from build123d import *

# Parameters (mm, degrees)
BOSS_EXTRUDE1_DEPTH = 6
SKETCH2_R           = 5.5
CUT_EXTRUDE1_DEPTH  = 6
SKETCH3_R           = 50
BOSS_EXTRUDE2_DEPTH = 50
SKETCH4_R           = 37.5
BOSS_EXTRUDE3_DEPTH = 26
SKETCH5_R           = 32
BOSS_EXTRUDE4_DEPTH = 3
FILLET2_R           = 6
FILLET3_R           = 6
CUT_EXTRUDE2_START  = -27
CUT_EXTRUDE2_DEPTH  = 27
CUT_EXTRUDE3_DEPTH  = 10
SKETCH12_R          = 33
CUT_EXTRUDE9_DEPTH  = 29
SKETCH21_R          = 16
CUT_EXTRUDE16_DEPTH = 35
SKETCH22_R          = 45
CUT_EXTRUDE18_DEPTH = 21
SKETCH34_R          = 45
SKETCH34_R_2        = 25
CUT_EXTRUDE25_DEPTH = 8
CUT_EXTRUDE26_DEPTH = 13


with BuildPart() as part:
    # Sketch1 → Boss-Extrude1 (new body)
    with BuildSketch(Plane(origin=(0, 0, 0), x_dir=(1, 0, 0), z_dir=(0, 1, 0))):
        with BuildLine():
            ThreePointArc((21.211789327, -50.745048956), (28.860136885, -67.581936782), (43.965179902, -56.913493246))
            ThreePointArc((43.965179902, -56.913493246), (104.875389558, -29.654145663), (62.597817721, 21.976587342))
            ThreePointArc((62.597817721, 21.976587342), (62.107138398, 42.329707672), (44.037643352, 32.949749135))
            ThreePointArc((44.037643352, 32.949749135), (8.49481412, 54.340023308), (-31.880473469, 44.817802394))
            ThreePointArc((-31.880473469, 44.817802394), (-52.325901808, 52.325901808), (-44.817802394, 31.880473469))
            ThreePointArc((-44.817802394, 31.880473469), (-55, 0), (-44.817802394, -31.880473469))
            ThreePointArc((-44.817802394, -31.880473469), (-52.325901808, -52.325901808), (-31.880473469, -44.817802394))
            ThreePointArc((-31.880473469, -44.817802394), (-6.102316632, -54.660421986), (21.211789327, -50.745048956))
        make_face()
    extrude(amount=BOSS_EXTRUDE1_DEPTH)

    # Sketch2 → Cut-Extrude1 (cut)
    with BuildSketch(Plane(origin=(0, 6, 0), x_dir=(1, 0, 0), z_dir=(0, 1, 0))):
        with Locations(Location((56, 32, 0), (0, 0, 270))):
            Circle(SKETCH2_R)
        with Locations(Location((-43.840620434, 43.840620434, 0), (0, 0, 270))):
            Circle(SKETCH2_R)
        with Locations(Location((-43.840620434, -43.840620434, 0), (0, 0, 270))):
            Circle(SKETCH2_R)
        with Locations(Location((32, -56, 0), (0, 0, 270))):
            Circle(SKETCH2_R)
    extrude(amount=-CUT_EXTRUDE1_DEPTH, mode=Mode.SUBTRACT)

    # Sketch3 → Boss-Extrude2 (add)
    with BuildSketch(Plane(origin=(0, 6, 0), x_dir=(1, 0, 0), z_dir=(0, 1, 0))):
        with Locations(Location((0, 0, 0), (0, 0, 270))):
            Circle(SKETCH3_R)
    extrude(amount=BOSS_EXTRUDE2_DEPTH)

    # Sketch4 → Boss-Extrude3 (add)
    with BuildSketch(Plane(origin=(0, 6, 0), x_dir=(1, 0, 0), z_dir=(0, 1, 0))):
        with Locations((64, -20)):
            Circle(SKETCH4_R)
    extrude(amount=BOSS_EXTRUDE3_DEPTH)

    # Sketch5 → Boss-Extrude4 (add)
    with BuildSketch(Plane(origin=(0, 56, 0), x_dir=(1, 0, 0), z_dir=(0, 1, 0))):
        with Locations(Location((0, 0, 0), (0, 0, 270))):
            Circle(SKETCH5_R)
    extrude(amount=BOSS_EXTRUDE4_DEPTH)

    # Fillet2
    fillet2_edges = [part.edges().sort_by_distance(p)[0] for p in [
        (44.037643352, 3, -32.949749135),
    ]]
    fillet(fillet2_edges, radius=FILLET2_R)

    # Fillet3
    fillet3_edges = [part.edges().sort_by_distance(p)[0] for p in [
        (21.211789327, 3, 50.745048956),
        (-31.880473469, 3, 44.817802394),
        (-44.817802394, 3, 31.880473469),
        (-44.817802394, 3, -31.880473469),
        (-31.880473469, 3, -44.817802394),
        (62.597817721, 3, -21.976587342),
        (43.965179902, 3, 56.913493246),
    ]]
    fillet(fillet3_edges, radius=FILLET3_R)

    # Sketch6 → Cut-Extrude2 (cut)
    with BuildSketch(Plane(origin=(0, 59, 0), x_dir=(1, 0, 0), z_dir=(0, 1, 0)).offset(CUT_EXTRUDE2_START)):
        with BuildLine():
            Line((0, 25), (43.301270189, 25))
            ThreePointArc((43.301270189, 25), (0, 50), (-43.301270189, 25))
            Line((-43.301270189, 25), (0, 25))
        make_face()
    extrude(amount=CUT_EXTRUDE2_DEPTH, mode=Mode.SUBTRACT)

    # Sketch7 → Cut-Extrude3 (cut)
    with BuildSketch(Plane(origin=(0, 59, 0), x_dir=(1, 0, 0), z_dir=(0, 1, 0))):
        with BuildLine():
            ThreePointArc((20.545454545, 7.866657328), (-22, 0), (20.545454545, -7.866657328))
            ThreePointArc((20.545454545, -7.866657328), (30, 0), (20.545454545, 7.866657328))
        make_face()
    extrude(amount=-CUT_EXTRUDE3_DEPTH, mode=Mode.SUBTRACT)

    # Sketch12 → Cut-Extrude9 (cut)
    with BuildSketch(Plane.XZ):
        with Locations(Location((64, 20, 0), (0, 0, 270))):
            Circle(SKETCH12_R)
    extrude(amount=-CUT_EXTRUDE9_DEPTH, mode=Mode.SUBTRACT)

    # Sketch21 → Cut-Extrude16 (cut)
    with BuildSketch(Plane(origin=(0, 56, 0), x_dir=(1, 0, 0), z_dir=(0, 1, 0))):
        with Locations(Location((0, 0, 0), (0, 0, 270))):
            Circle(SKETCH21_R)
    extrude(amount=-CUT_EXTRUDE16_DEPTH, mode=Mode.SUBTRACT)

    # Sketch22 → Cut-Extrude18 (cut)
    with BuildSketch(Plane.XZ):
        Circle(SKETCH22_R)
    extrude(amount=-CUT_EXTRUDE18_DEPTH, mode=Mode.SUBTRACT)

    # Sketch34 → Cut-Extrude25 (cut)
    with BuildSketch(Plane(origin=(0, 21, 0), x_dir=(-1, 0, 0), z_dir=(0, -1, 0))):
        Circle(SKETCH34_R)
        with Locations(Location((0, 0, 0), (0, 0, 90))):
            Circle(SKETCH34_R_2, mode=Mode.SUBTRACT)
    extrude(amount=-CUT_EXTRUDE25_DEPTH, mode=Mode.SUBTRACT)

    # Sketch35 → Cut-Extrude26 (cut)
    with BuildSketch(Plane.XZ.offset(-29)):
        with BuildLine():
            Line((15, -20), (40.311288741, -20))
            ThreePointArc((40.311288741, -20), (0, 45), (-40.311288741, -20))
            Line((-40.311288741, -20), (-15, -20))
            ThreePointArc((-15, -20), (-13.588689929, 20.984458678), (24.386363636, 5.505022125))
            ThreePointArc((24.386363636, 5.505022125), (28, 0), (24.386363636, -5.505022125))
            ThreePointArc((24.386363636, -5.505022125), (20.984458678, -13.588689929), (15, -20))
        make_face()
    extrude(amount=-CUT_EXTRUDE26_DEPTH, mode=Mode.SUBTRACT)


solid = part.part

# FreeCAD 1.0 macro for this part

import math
import FreeCAD as App
import Part
import Sketcher
from FreeCAD import Vector
Q = App.Units.Quantity


def edges_at(feature, points):
    """Names of the edges that pass closest to the given points."""
    edges = feature.Shape.Edges
    near = lambda p: min(range(len(edges)), key=lambda i: edges[i].distToShape(Part.Vertex(*p))[0])
    return sorted({f"Edge{near(p) + 1}" for p in points})

doc = App.newDocument("Part")
body = doc.addObject("PartDesign::Body", "Body")

# Sketch on XZ plane
sketch1 = body.newObject("Sketcher::SketchObject", "Sketch")
sketch1.AttachmentSupport = (doc.getObject("XZ_Plane"), [""])
sketch1.MapMode = "FlatFace"
sketch1.addGeometry([
    Part.ArcOfCircle(Part.Circle(Vector(32, 56, 0), Vector(0, 0, 1), 12), math.radians(4), math.radians(206)),  # 0
    Part.ArcOfCircle(Part.Circle(Vector(64, 20, 0), Vector(0, 0, 1), 42), math.radians(-92), math.radians(118)),  # 1
    Part.ArcOfCircle(Part.Circle(Vector(56, -32, 0), Vector(0, 0, 1), 12), math.radians(-175), math.radians(57)),  # 2
    Part.ArcOfCircle(Part.Circle(Vector(0, 0, 0), Vector(0, 0, 1), 55), math.radians(-125), math.radians(-37)),  # 3
    Part.ArcOfCircle(Part.Circle(Vector(-44, -44, 0), Vector(0, 0, 1), 12), math.radians(95), math.radians(355)),  # 4
    Part.ArcOfCircle(Part.Circle(Vector(0, 0, 0), Vector(0, 0, 1), 55), math.radians(145), math.radians(215)),  # 5
    Part.ArcOfCircle(Part.Circle(Vector(-44, 44, 0), Vector(0, 0, 1), 12), math.radians(5), math.radians(265)),  # 6
    Part.ArcOfCircle(Part.Circle(Vector(0, 0, 0), Vector(0, 0, 1), 55), math.radians(67), math.radians(125)),  # 7
], False)
sketch1.addConstraint([
    Sketcher.Constraint("Coincident", 0, 1, 1, 2),
    Sketcher.Constraint("Coincident", 1, 1, 2, 2),
    Sketcher.Constraint("Coincident", 2, 1, 3, 2),
    Sketcher.Constraint("Coincident", 3, 1, 4, 2),
    Sketcher.Constraint("Coincident", 4, 1, 5, 2),
    Sketcher.Constraint("Coincident", 5, 1, 6, 2),
    Sketcher.Constraint("Coincident", 6, 1, 7, 2),
    Sketcher.Constraint("Coincident", 7, 1, 0, 2),
    Sketcher.Constraint("Coincident", 3, 3, -1, 1),
    Sketcher.Constraint("Coincident", 5, 3, -1, 1),
    Sketcher.Constraint("Coincident", 7, 3, -1, 1),
    Sketcher.Constraint("Equal", 0, 2),
    Sketcher.Constraint("Equal", 2, 4),
    Sketcher.Constraint("Equal", 3, 5),
    Sketcher.Constraint("Equal", 4, 6),
    Sketcher.Constraint("Equal", 5, 7),
    Sketcher.Constraint("Symmetric", 4, 3, 6, 3, -1),
    Sketcher.Constraint("Radius", 0, Q("12 mm")),
    Sketcher.Constraint("Radius", 1, Q("42 mm")),
    Sketcher.Constraint("Radius", 3, Q("55 mm")),
    Sketcher.Constraint("DistanceX", -1, 1, 0, 3, Q("32 mm")),
    Sketcher.Constraint("DistanceY", -1, 1, 0, 3, Q("56 mm")),
    Sketcher.Constraint("DistanceX", -1, 1, 1, 3, Q("64 mm")),
    Sketcher.Constraint("DistanceY", -1, 1, 1, 3, Q("20 mm")),
    Sketcher.Constraint("DistanceX", -1, 1, 2, 3, Q("56 mm")),
    Sketcher.Constraint("DistanceY", 2, 3, -1, 1, Q("32 mm")),
    Sketcher.Constraint("DistanceX", 4, 3, -1, 1, Q("43.84062 mm")),
    Sketcher.Constraint("DistanceY", 4, 3, -1, 1, Q("43.84062 mm")),
])
pad1 = body.newObject("PartDesign::Pad", "Pad")
pad1.Profile = sketch1
pad1.Length = 6
pad1.Reversed = True

# Sketch on XZ plane
sketch2 = body.newObject("Sketcher::SketchObject", "Sketch001")
sketch2.AttachmentSupport = (doc.getObject("XZ_Plane"), [""])
sketch2.MapMode = "FlatFace"
sketch2.AttachmentOffset = App.Placement(Vector(0, 0, -6), App.Rotation())
sketch2.addGeometry([
    Part.Circle(Vector(56, -32, 0), Vector(0, 0, 1), 6),
    Part.Circle(Vector(-44, -44, 0), Vector(0, 0, 1), 6),
    Part.Circle(Vector(-44, 44, 0), Vector(0, 0, 1), 6),
    Part.Circle(Vector(32, 56, 0), Vector(0, 0, 1), 6),
], False)
sketch2.addConstraint([
    Sketcher.Constraint("Equal", 0, 1),
    Sketcher.Constraint("Equal", 1, 2),
    Sketcher.Constraint("Equal", 2, 3),
    Sketcher.Constraint("Symmetric", 1, 3, 2, 3, -1),
    Sketcher.Constraint("Diameter", 0, Q("11 mm")),
    Sketcher.Constraint("DistanceX", -1, 1, 0, 3, Q("56 mm")),
    Sketcher.Constraint("DistanceY", 0, 3, -1, 1, Q("32 mm")),
    Sketcher.Constraint("DistanceX", -1, 1, 3, 3, Q("32 mm")),
    Sketcher.Constraint("DistanceY", -1, 1, 3, 3, Q("56 mm")),
    Sketcher.Constraint("DistanceX", 1, 3, -1, 1, Q("43.84062 mm")),
    Sketcher.Constraint("DistanceY", 1, 3, -1, 1, Q("43.84062 mm")),
])
pocket1 = body.newObject("PartDesign::Pocket", "Pocket")
pocket1.Profile = sketch2
pocket1.Length = 6
pocket1.Reversed = True

# Sketch on XZ plane
sketch3 = body.newObject("Sketcher::SketchObject", "Sketch002")
sketch3.AttachmentSupport = (doc.getObject("XZ_Plane"), [""])
sketch3.MapMode = "FlatFace"
sketch3.AttachmentOffset = App.Placement(Vector(0, 0, -6), App.Rotation())
sketch3.addGeometry(Part.Circle(Vector(0, 0, 0), Vector(0, 0, 1), 50), False)
sketch3.addConstraint([
    Sketcher.Constraint("Coincident", 0, 3, -1, 1),
    Sketcher.Constraint("Diameter", 0, Q("100 mm")),
])
pad2 = body.newObject("PartDesign::Pad", "Pad001")
pad2.Profile = sketch3
pad2.Length = 50
pad2.Reversed = True

# Sketch on XZ plane
sketch4 = body.newObject("Sketcher::SketchObject", "Sketch003")
sketch4.AttachmentSupport = (doc.getObject("XZ_Plane"), [""])
sketch4.MapMode = "FlatFace"
sketch4.AttachmentOffset = App.Placement(Vector(0, 0, -6), App.Rotation())
sketch4.addGeometry(Part.Circle(Vector(64, 20, 0), Vector(0, 0, 1), 38), False)
sketch4.addConstraint([
    Sketcher.Constraint("Diameter", 0, Q("75 mm")),
    Sketcher.Constraint("DistanceX", -1, 1, 0, 3, Q("64 mm")),
    Sketcher.Constraint("DistanceY", -1, 1, 0, 3, Q("20 mm")),
])
pad3 = body.newObject("PartDesign::Pad", "Pad002")
pad3.Profile = sketch4
pad3.Length = 26
pad3.Reversed = True

# Sketch on XZ plane
sketch5 = body.newObject("Sketcher::SketchObject", "Sketch004")
sketch5.AttachmentSupport = (doc.getObject("XZ_Plane"), [""])
sketch5.MapMode = "FlatFace"
sketch5.AttachmentOffset = App.Placement(Vector(0, 0, -56), App.Rotation())
sketch5.addGeometry(Part.Circle(Vector(0, 0, 0), Vector(0, 0, 1), 32), False)
sketch5.addConstraint([
    Sketcher.Constraint("Coincident", 0, 3, -1, 1),
    Sketcher.Constraint("Diameter", 0, Q("64 mm")),
])
pad4 = body.newObject("PartDesign::Pad", "Pad003")
pad4.Profile = sketch5
pad4.Length = 3
pad4.Reversed = True
doc.recompute()

fillet = body.newObject("PartDesign::Fillet", "Fillet")
fillet.Base = (pad4, edges_at(pad4, [(44.038, 3, -32.95)]))
fillet.Radius = 6
doc.recompute()

fillet2 = body.newObject("PartDesign::Fillet", "Fillet001")
fillet2.Base = (fillet, edges_at(fillet, [
    (21.212, 3, 50.745),
    (-31.88, 3, 44.818),
    (-44.818, 3, 31.88),
    (-44.818, 3, -31.88),
    (-31.88, 3, -44.818),
    (62.598, 3, -21.977),
    (43.965, 3, 56.913),
]))
fillet2.Radius = 6

# Sketch on XZ plane
sketch6 = body.newObject("Sketcher::SketchObject", "Sketch005")
sketch6.AttachmentSupport = (doc.getObject("XZ_Plane"), [""])
sketch6.MapMode = "FlatFace"
sketch6.AttachmentOffset = App.Placement(Vector(0, 0, -32), App.Rotation())
sketch6.addGeometry([
    Part.ArcOfCircle(Part.Circle(Vector(0, 0, 0), Vector(0, 0, 1), 50), math.radians(-150), math.radians(-30)),
    Part.LineSegment(Vector(-43, -25, 0), Vector(43, -25, 0)),
], False)
sketch6.addConstraint([
    Sketcher.Constraint("Coincident", 0, 1, 1, 1),
    Sketcher.Constraint("Coincident", 1, 2, 0, 2),
    Sketcher.Constraint("Horizontal", 1),
    Sketcher.Constraint("Coincident", 0, 3, -1, 1),
    Sketcher.Constraint("Radius", 0, Q("50 mm")),
    Sketcher.Constraint("DistanceY", 0, 1, -1, 1, Q("25 mm")),
])
pocket2 = body.newObject("PartDesign::Pocket", "Pocket001")
pocket2.Profile = sketch6
pocket2.Length = 27

# Sketch on XZ plane
sketch7 = body.newObject("Sketcher::SketchObject", "Sketch006")
sketch7.AttachmentSupport = (doc.getObject("XZ_Plane"), [""])
sketch7.MapMode = "FlatFace"
sketch7.AttachmentOffset = App.Placement(Vector(0, 0, -59), App.Rotation())
sketch7.addGeometry([
    Part.ArcOfCircle(Part.Circle(Vector(0, 0, 0), Vector(0, 0, 1), 22), math.radians(21), math.radians(339)),
    Part.ArcOfCircle(Part.Circle(Vector(22, 0, 0), Vector(0, 0, 1), 8), math.radians(-100), math.radians(100)),
], False)
sketch7.addConstraint([
    Sketcher.Constraint("Coincident", 0, 1, 1, 2),
    Sketcher.Constraint("Coincident", 1, 1, 0, 2),
    Sketcher.Constraint("Coincident", 0, 3, -1, 1),
    Sketcher.Constraint("PointOnObject", 1, 3, -1),
    Sketcher.Constraint("Radius", 0, Q("22 mm")),
    Sketcher.Constraint("Radius", 1, Q("8 mm")),
    Sketcher.Constraint("DistanceX", -1, 1, 1, 3, Q("22 mm")),
])
pocket3 = body.newObject("PartDesign::Pocket", "Pocket002")
pocket3.Profile = sketch7
pocket3.Length = 10
pocket3.Reversed = True

# Sketch on XZ plane
sketch8 = body.newObject("Sketcher::SketchObject", "Sketch007")
sketch8.AttachmentSupport = (doc.getObject("XZ_Plane"), [""])
sketch8.MapMode = "FlatFace"
sketch8.addGeometry(Part.Circle(Vector(64, 20, 0), Vector(0, 0, 1), 33), False)
sketch8.addConstraint([
    Sketcher.Constraint("Diameter", 0, Q("66 mm")),
    Sketcher.Constraint("DistanceX", -1, 1, 0, 3, Q("64 mm")),
    Sketcher.Constraint("DistanceY", -1, 1, 0, 3, Q("20 mm")),
])
pocket4 = body.newObject("PartDesign::Pocket", "Pocket003")
pocket4.Profile = sketch8
pocket4.Length = 29

# Sketch on XZ plane
sketch9 = body.newObject("Sketcher::SketchObject", "Sketch008")
sketch9.AttachmentSupport = (doc.getObject("XZ_Plane"), [""])
sketch9.MapMode = "FlatFace"
sketch9.AttachmentOffset = App.Placement(Vector(0, 0, -56), App.Rotation())
sketch9.addGeometry(Part.Circle(Vector(0, 0, 0), Vector(0, 0, 1), 16), False)
sketch9.addConstraint([
    Sketcher.Constraint("Coincident", 0, 3, -1, 1),
    Sketcher.Constraint("Diameter", 0, Q("32 mm")),
])
pocket5 = body.newObject("PartDesign::Pocket", "Pocket004")
pocket5.Profile = sketch9
pocket5.Length = 35
pocket5.Reversed = True

# Sketch on XZ plane
sketch10 = body.newObject("Sketcher::SketchObject", "Sketch009")
sketch10.AttachmentSupport = (doc.getObject("XZ_Plane"), [""])
sketch10.MapMode = "FlatFace"
sketch10.addGeometry(Part.Circle(Vector(0, 0, 0), Vector(0, 0, 1), 45), False)
sketch10.addConstraint([
    Sketcher.Constraint("Coincident", 0, 3, -1, 1),
    Sketcher.Constraint("Diameter", 0, Q("90 mm")),
])
pocket6 = body.newObject("PartDesign::Pocket", "Pocket005")
pocket6.Profile = sketch10
pocket6.Length = 21

# Sketch on XZ plane
sketch11 = body.newObject("Sketcher::SketchObject", "Sketch010")
sketch11.AttachmentSupport = (doc.getObject("XZ_Plane"), [""])
sketch11.MapMode = "FlatFace"
sketch11.AttachmentOffset = App.Placement(Vector(0, 0, -21), App.Rotation())
sketch11.addGeometry([
    Part.Circle(Vector(0, 0, 0), Vector(0, 0, 1), 45),
    Part.Circle(Vector(0, 0, 0), Vector(0, 0, 1), 25),
], False)
sketch11.addConstraint([
    Sketcher.Constraint("Coincident", 0, 3, -1, 1),
    Sketcher.Constraint("Coincident", 1, 3, -1, 1),
    Sketcher.Constraint("Diameter", 0, Q("90 mm")),
    Sketcher.Constraint("Diameter", 1, Q("50 mm")),
])
pocket7 = body.newObject("PartDesign::Pocket", "Pocket006")
pocket7.Profile = sketch11
pocket7.Length = 8

# Sketch on XZ plane
sketch12 = body.newObject("Sketcher::SketchObject", "Sketch011")
sketch12.AttachmentSupport = (doc.getObject("XZ_Plane"), [""])
sketch12.MapMode = "FlatFace"
sketch12.AttachmentOffset = App.Placement(Vector(0, 0, -29), App.Rotation())
sketch12.addGeometry([
    Part.LineSegment(Vector(15, -20, 0), Vector(40, -20, 0)),  # 0
    Part.ArcOfCircle(Part.Circle(Vector(0, 0, 0), Vector(0, 0, 1), 45), math.radians(-26), math.radians(206)),  # 1
    Part.LineSegment(Vector(-40, -20, 0), Vector(-15, -20, 0)),  # 2
    Part.ArcOfCircle(Part.Circle(Vector(0, 0, 0), Vector(0, 0, 1), 25), math.radians(13), math.radians(233)),  # 3
    Part.ArcOfCircle(Part.Circle(Vector(22, 0, 0), Vector(0, 0, 1), 6), math.radians(-67), math.radians(67)),  # 4
    Part.ArcOfCircle(Part.Circle(Vector(0, 0, 0), Vector(0, 0, 1), 25), math.radians(-53), math.radians(-13)),  # 5
], False)
sketch12.addConstraint([
    Sketcher.Constraint("Coincident", 0, 2, 1, 1),
    Sketcher.Constraint("Coincident", 1, 2, 2, 1),
    Sketcher.Constraint("Coincident", 2, 2, 3, 2),
    Sketcher.Constraint("Coincident", 3, 1, 4, 2),
    Sketcher.Constraint("Coincident", 4, 1, 5, 2),
    Sketcher.Constraint("Coincident", 5, 1, 0, 1),
    Sketcher.Constraint("Horizontal", 0),
    Sketcher.Constraint("Horizontal", 2),
    Sketcher.Constraint("Coincident", 1, 3, -1, 1),
    Sketcher.Constraint("Coincident", 3, 3, -1, 1),
    Sketcher.Constraint("Coincident", 5, 3, -1, 1),
    Sketcher.Constraint("Equal", 3, 5),
    Sketcher.Constraint("PointOnObject", 4, 3, -1),
    Sketcher.Constraint("Horizontal", 0, 2, 1, 2),
    Sketcher.Constraint("Radius", 1, Q("45 mm")),
    Sketcher.Constraint("Radius", 3, Q("25 mm")),
    Sketcher.Constraint("Radius", 4, Q("6 mm")),
    Sketcher.Constraint("DistanceX", -1, 1, 4, 3, Q("22 mm")),
    Sketcher.Constraint("DistanceY", 0, 2, -1, 1, Q("20 mm")),
])
pocket8 = body.newObject("PartDesign::Pocket", "Pocket007")
pocket8.Profile = sketch12
pocket8.Length = 13

doc.recompute()
